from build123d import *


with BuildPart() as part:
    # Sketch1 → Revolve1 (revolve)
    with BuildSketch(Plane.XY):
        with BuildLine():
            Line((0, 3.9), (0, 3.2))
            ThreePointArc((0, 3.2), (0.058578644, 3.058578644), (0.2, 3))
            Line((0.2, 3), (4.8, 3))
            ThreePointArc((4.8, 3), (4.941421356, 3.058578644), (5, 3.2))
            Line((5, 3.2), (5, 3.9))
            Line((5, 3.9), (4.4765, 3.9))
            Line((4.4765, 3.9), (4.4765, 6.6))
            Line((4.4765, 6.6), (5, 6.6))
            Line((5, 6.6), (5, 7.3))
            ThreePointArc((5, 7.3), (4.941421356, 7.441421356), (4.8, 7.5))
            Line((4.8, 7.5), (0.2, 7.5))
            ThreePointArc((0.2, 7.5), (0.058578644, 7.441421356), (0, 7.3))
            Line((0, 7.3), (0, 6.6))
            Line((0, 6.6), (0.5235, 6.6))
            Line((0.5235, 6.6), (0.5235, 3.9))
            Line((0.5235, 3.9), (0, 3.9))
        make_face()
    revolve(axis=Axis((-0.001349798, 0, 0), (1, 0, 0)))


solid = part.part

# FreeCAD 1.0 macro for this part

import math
import FreeCAD as App
import Part
import Sketcher

V = App.Vector
Q = App.Units.Quantity

doc = App.newDocument("Part")
params = doc.addObject("Spreadsheet::Sheet", "Params")
for row, (alias, value) in enumerate([
    ("sketch1_radius", "0.2 mm"),
    ("sketch1_width", "4.6 mm"),
    ("sketch1_height", "0.7 mm"),
    ("sketch1_height2", "2.7 mm"),
    ("revolution_angle", "360 deg"),
], start=1):
    params.set(f"A{row}", alias)
    params.set(f"B{row}", "=" + value)
    params.setAlias(f"B{row}", alias)

body = doc.addObject("PartDesign::Body", "Body")

# Sketch on XY plane
sketch1 = body.newObject("Sketcher::SketchObject", "Sketch")
sketch1.AttachmentSupport = (doc.getObject("XY_Plane"), [""])
sketch1.MapMode = "FlatFace"
sketch1.addGeometry([
    Part.LineSegment(V(0, 3.9, 0), V(0, 3.2, 0)),  # 0
    Part.ArcOfCircle(Part.Circle(V(0.2, 3.2, 0), V(0, 0, 1), 0.2), math.radians(-180), math.radians(-90)),  # 1
    Part.LineSegment(V(0.2, 3, 0), V(4.8, 3, 0)),  # 2
    Part.ArcOfCircle(Part.Circle(V(4.8, 3.2, 0), V(0, 0, 1), 0.2), math.radians(-90), math.radians(0)),  # 3
    Part.LineSegment(V(5, 3.2, 0), V(5, 3.9, 0)),  # 4
    Part.LineSegment(V(5, 3.9, 0), V(4.48, 3.9, 0)),  # 5
    Part.LineSegment(V(4.48, 3.9, 0), V(4.48, 6.6, 0)),  # 6
    Part.LineSegment(V(4.48, 6.6, 0), V(5, 6.6, 0)),  # 7
    Part.LineSegment(V(5, 6.6, 0), V(5, 7.3, 0)),  # 8
    Part.ArcOfCircle(Part.Circle(V(4.8, 7.3, 0), V(0, 0, 1), 0.2), math.radians(0), math.radians(90)),  # 9
    Part.LineSegment(V(4.8, 7.5, 0), V(0.2, 7.5, 0)),  # 10
    Part.ArcOfCircle(Part.Circle(V(0.2, 7.3, 0), V(0, 0, 1), 0.2), math.radians(90), math.radians(180)),  # 11
    Part.LineSegment(V(0, 7.3, 0), V(0, 6.6, 0)),  # 12
    Part.LineSegment(V(0, 6.6, 0), V(0.52, 6.6, 0)),  # 13
    Part.LineSegment(V(0.52, 6.6, 0), V(0.52, 3.9, 0)),  # 14
    Part.LineSegment(V(0.52, 3.9, 0), V(0, 3.9, 0)),  # 15
], False)
sketch1.addConstraint([
    Sketcher.Constraint("Tangent", 0, 2, 1, 1),
    Sketcher.Constraint("Tangent", 1, 2, 2, 1),
    Sketcher.Constraint("Tangent", 2, 2, 3, 1),
    Sketcher.Constraint("Tangent", 3, 2, 4, 1),
    Sketcher.Constraint("Coincident", 4, 2, 5, 1),
    Sketcher.Constraint("Coincident", 5, 2, 6, 1),
    Sketcher.Constraint("Coincident", 6, 2, 7, 1),
    Sketcher.Constraint("Coincident", 7, 2, 8, 1),
    Sketcher.Constraint("Tangent", 8, 2, 9, 1),
    Sketcher.Constraint("Tangent", 9, 2, 10, 1),
    Sketcher.Constraint("Tangent", 10, 2, 11, 1),
    Sketcher.Constraint("Tangent", 11, 2, 12, 1),
    Sketcher.Constraint("Coincident", 12, 2, 13, 1),
    Sketcher.Constraint("Coincident", 13, 2, 14, 1),
    Sketcher.Constraint("Coincident", 14, 2, 15, 1),
    Sketcher.Constraint("Coincident", 15, 2, 0, 1),
    Sketcher.Constraint("Vertical", 0),
    Sketcher.Constraint("Horizontal", 2),
    Sketcher.Constraint("Vertical", 4),
    Sketcher.Constraint("Horizontal", 5),
    Sketcher.Constraint("Vertical", 6),
    Sketcher.Constraint("Horizontal", 7),
    Sketcher.Constraint("Vertical", 8),
    Sketcher.Constraint("Horizontal", 10),
    Sketcher.Constraint("Vertical", 12),
    Sketcher.Constraint("Horizontal", 13),
    Sketcher.Constraint("Vertical", 14),
    Sketcher.Constraint("Horizontal", 15),
    Sketcher.Constraint("Equal", 1, 3),
    Sketcher.Constraint("Equal", 3, 9),
    Sketcher.Constraint("Equal", 9, 11),
    Sketcher.Constraint("PointOnObject", 0, 2, -2),
    Sketcher.Constraint("PointOnObject", 11, 2, -2),
    Sketcher.Constraint("Horizontal", 7, 2, 12, 2),
    Sketcher.Constraint("Horizontal", 5, 2, 14, 2),
    Sketcher.Constraint("Vertical", 3, 3, 9, 3),
    Sketcher.Constraint("Equal", 7, 13),
    Sketcher.Constraint("Equal", 4, 8),
    Sketcher.Constraint("Radius", 1, Q("0.2 mm")),
    Sketcher.Constraint("DistanceX", 2, 1, 2, 2, Q("4.6 mm")),
    Sketcher.Constraint("DistanceY", 0, 2, 0, 1, Q("0.7 mm")),
    Sketcher.Constraint("DistanceY", 6, 1, 6, 2, Q("2.7 mm")),
    Sketcher.Constraint("DistanceY", -1, 1, 1, 2, Q("3 mm")),
    Sketcher.Constraint("DistanceX", 5, 2, 5, 1, Q("0.5235 mm")),
])
sketch1.setExpression("Constraints[38]", "Params.sketch1_radius")
sketch1.setExpression("Constraints[39]", "Params.sketch1_width")
sketch1.setExpression("Constraints[40]", "Params.sketch1_height")
sketch1.setExpression("Constraints[41]", "Params.sketch1_height2")
revolution = body.newObject("PartDesign::Revolution", "Revolution")
revolution.Profile = sketch1
revolution.ReferenceAxis = (sketch1, ["H_Axis"])
revolution.setExpression("Angle", "Params.revolution_angle")

doc.recompute()
